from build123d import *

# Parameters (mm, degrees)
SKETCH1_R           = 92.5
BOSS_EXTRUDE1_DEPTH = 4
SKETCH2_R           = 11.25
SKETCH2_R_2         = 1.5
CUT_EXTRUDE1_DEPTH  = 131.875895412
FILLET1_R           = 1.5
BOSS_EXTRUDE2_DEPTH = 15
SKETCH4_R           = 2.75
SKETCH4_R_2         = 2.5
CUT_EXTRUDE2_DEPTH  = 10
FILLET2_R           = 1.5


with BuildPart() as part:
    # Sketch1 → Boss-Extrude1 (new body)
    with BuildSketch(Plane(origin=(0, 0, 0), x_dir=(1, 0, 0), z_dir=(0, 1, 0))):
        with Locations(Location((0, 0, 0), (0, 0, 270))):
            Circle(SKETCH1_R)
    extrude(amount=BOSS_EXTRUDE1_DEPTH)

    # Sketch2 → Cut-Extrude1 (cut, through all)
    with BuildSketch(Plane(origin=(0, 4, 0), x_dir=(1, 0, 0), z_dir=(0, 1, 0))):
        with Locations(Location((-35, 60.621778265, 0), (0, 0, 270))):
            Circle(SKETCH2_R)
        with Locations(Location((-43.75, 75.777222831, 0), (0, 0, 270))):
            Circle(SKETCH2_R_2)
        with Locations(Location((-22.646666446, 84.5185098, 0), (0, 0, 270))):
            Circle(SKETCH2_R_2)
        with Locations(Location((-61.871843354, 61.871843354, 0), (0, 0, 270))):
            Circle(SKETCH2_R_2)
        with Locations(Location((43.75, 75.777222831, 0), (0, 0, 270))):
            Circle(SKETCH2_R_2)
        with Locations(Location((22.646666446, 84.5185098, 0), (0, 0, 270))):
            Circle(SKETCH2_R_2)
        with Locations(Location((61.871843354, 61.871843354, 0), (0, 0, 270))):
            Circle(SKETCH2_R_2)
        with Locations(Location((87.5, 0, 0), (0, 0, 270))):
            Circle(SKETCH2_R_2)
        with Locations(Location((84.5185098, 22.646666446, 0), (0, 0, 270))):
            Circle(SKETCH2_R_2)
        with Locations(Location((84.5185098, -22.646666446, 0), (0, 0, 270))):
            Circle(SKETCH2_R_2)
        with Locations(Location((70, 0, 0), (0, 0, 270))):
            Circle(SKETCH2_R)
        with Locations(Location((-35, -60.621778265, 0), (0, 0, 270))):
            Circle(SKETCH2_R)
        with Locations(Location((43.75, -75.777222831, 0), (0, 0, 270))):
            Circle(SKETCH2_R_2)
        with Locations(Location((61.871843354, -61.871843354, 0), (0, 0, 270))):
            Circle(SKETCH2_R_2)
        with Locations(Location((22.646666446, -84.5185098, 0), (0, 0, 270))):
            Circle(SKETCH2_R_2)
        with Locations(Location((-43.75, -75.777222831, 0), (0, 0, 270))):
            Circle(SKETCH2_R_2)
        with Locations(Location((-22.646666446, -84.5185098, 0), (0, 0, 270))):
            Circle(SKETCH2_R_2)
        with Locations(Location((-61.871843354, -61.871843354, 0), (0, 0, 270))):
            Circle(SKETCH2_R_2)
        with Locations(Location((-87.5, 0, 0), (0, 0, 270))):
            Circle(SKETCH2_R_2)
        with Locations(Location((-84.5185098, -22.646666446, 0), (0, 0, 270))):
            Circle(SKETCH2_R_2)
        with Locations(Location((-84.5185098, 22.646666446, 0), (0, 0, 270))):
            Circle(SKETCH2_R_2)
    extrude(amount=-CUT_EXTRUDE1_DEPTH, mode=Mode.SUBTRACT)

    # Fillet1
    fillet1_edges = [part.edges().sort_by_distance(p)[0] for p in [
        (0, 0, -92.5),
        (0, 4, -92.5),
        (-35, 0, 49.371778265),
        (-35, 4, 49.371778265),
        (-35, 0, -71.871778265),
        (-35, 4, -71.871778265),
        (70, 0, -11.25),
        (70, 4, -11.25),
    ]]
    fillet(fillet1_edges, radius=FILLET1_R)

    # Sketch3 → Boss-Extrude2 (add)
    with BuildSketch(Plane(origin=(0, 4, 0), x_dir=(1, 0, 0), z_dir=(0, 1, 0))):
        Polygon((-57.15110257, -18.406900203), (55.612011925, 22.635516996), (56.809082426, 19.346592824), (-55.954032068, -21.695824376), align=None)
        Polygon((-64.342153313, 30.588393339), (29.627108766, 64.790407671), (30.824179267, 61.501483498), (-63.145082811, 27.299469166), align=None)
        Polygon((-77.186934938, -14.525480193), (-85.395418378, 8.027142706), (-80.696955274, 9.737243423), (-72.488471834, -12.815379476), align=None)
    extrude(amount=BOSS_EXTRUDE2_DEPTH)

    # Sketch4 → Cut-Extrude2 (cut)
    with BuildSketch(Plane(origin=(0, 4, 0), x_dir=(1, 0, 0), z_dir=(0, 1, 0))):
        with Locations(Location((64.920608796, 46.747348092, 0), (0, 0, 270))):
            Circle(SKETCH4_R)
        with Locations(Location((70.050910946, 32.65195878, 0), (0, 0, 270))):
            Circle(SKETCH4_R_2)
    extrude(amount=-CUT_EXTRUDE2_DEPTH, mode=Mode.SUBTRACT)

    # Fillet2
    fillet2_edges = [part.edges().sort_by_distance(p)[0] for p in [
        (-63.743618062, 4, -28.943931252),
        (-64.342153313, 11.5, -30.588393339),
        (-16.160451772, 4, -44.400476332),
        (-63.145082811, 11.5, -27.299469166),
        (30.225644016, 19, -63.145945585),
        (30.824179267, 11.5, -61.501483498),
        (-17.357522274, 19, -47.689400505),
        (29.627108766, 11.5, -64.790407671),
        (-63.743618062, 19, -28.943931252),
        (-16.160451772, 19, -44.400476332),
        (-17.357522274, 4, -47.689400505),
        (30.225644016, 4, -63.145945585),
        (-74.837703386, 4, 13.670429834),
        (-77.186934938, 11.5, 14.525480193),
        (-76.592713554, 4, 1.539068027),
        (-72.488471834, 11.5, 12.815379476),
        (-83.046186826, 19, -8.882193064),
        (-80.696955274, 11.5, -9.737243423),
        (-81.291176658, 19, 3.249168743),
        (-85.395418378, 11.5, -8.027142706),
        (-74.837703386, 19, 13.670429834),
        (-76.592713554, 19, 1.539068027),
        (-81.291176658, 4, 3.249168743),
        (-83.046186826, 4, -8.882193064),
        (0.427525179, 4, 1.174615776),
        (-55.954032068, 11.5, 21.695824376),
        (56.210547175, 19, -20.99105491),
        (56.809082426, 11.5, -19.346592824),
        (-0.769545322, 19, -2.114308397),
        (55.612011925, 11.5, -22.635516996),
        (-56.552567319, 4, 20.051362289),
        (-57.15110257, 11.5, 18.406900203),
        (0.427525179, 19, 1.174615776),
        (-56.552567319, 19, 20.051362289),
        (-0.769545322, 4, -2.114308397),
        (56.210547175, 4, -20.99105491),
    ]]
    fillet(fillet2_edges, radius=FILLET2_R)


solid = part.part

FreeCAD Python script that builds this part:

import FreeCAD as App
import Part
import Sketcher
from FreeCAD import Vector
Q = App.Units.Quantity


def edges_at(feature, points):
    """Names of the edges that pass closest to the given points."""
    edges = feature.Shape.Edges
    near = lambda p: min(range(len(edges)), key=lambda i: edges[i].distToShape(Part.Vertex(*p))[0])
    return sorted({f"Edge{near(p) + 1}" for p in points})


def add_polygon(sketch, points):
    """Adds a closed chain of lines whose ends are joined by coincident constraints."""
    first, n = sketch.GeometryCount, len(points)
    for a, b in zip(points, points[1:] + points[:1]):
        sketch.addGeometry(Part.LineSegment(App.Vector(*a, 0), App.Vector(*b, 0)), False)
    for i in range(n):
        sketch.addConstraint(Sketcher.Constraint("Coincident", first + i, 2, first + (i + 1) % n, 1))

doc = App.newDocument("Part")
body = doc.addObject("PartDesign::Body", "Body")

sketch1 = body.newObject("Sketcher::SketchObject", "Sketch")
sketch1.AttachmentSupport = (doc.getObject("XZ_Plane"), [""])
sketch1.MapMode = "FlatFace"
sketch1.addGeometry(Part.Circle(Vector(0, 0, 0), Vector(0, 0, 1), 92.5), False)
sketch1.addConstraint([
    Sketcher.Constraint("Coincident", 0, 3, -1, 1),
    Sketcher.Constraint("Diameter", 0, 185.0),
])
pad1 = body.newObject("PartDesign::Pad", "Pad")
pad1.Profile = sketch1
pad1.Length = 4
pad1.Reversed = True

sketch2 = body.newObject("Sketcher::SketchObject", "Sketch001")
sketch2.AttachmentSupport = (doc.getObject("XZ_Plane"), [""])
sketch2.MapMode = "FlatFace"
sketch2.AttachmentOffset = App.Placement(Vector(0, 0, -4), App.Rotation())
sketch2.addGeometry([
    Part.Circle(Vector(-35, -60.621778, 0), Vector(0, 0, 1), 11.25),
    Part.Circle(Vector(-43.75, -75.777223, 0), Vector(0, 0, 1), 1.5),
    Part.Circle(Vector(-22.646666, -84.51851, 0), Vector(0, 0, 1), 1.5),
    Part.Circle(Vector(-61.871843, -61.871843, 0), Vector(0, 0, 1), 1.5),
    Part.Circle(Vector(43.75, -75.777223, 0), Vector(0, 0, 1), 1.5),
    Part.Circle(Vector(22.646666, -84.51851, 0), Vector(0, 0, 1), 1.5),
    Part.Circle(Vector(61.871843, -61.871843, 0), Vector(0, 0, 1), 1.5),
    Part.Circle(Vector(87.5, 0, 0), Vector(0, 0, 1), 1.5),
    Part.Circle(Vector(84.51851, -22.646666, 0), Vector(0, 0, 1), 1.5),
    Part.Circle(Vector(84.51851, 22.646666, 0), Vector(0, 0, 1), 1.5),
    Part.Circle(Vector(70, 0, 0), Vector(0, 0, 1), 11.25),
    Part.Circle(Vector(-35, 60.621778, 0), Vector(0, 0, 1), 11.25),
    Part.Circle(Vector(43.75, 75.777223, 0), Vector(0, 0, 1), 1.5),
    Part.Circle(Vector(61.871843, 61.871843, 0), Vector(0, 0, 1), 1.5),
    Part.Circle(Vector(22.646666, 84.51851, 0), Vector(0, 0, 1), 1.5),
    Part.Circle(Vector(-43.75, 75.777223, 0), Vector(0, 0, 1), 1.5),
    Part.Circle(Vector(-22.646666, 84.51851, 0), Vector(0, 0, 1), 1.5),
    Part.Circle(Vector(-61.871843, 61.871843, 0), Vector(0, 0, 1), 1.5),
    Part.Circle(Vector(-87.5, 0, 0), Vector(0, 0, 1), 1.5),
    Part.Circle(Vector(-84.51851, 22.646666, 0), Vector(0, 0, 1), 1.5),
    Part.Circle(Vector(-84.51851, -22.646666, 0), Vector(0, 0, 1), 1.5),
], False)
sketch2.addConstraint([
    Sketcher.Constraint("Equal", 1, 2),
    Sketcher.Constraint("Equal", 2, 3),
    Sketcher.Constraint("Equal", 3, 4),
    Sketcher.Constraint("Equal", 4, 5),
    Sketcher.Constraint("Equal", 5, 6),
    Sketcher.Constraint("Equal", 6, 7),
    Sketcher.Constraint("Equal", 7, 8),
    Sketcher.Constraint("Equal", 8, 9),
    Sketcher.Constraint("Equal", 0, 10),
    Sketcher.Constraint("Equal", 10, 11),
    Sketcher.Constraint("Equal", 9, 12),
    Sketcher.Constraint("Equal", 12, 13),
    Sketcher.Constraint("Equal", 13, 14),
    Sketcher.Constraint("Equal", 14, 15),
    Sketcher.Constraint("Equal", 15, 16),
    Sketcher.Constraint("Equal", 16, 17),
    Sketcher.Constraint("Equal", 17, 18),
    Sketcher.Constraint("Equal", 18, 19),
    Sketcher.Constraint("Equal", 19, 20),
    Sketcher.Constraint("Symmetric", 1, 3, 12, 3, -1, 1),
    Sketcher.Constraint("Symmetric", 3, 3, 13, 3, -1, 1),
    Sketcher.Constraint("Symmetric", 2, 3, 14, 3, -1, 1),
    Sketcher.Constraint("Symmetric", 4, 3, 15, 3, -1, 1),
    Sketcher.Constraint("Symmetric", 5, 3, 16, 3, -1, 1),
    Sketcher.Constraint("Symmetric", 6, 3, 17, 3, -1, 1),
    Sketcher.Constraint("Symmetric", 7, 3, 18, 3, -1, 1),
    Sketcher.Constraint("Symmetric", 8, 3, 19, 3, -1, 1),
    Sketcher.Constraint("Symmetric", 9, 3, 20, 3, -1, 1),
    Sketcher.Constraint("Symmetric", 1, 3, 4, 3, -2),
    Sketcher.Constraint("Symmetric", 2, 3, 5, 3, -2),
    Sketcher.Constraint("Symmetric", 3, 3, 6, 3, -2),
    Sketcher.Constraint("Symmetric", 9, 3, 19, 3, -2),
    Sketcher.Constraint("Symmetric", 0, 3, 11, 3, -1),
    Sketcher.Constraint("PointOnObject", 7, 3, -1),
    Sketcher.Constraint("PointOnObject", 10, 3, -1),
    Sketcher.Constraint("Diameter", 1, 3.0),
    Sketcher.Constraint("Diameter", 0, 22.5),
    Sketcher.Constraint("DistanceX", 0, 3, -1, 1, 35.0),
    Sketcher.Constraint("DistanceX", -1, 1, 10, 3, 70.0),
    Sketcher.Constraint("DistanceX", -1, 1, 7, 3, 87.5),
    Sketcher.Constraint("DistanceX", 1, 3, 4, 3, 87.5),
    Sketcher.Constraint("DistanceY", 1, 3, 11, 3, 136.399001),
    Sketcher.Constraint("DistanceY", 0, 3, -1, 1, 60.621778),
    Sketcher.Constraint("DistanceY", 2, 3, -1, 1, 84.51851),
    Sketcher.Constraint("DistanceX", -1, 1, 8, 3, 84.51851),
    Sketcher.Constraint("DistanceY", 1, 3, 3, 3, 13.905379),
    Sketcher.Constraint("DistanceX", 3, 3, 5, 3, 84.51851),
    Sketcher.Constraint("DistanceY", 6, 3, 9, 3, 84.51851),
    Sketcher.Constraint("DistanceX", 2, 3, -1, 1, 22.646666),
])
pocket1 = body.newObject("PartDesign::Pocket", "Pocket")
pocket1.Profile = sketch2
pocket1.Type = "ThroughAll"
pocket1.Reversed = True
doc.recompute()

fillet = body.newObject("PartDesign::Fillet", "Fillet")
fillet.Base = (pocket1, edges_at(pocket1, [
    (0, 0, -92.5),
    (0, 4, -92.5),
    (-35, 0, 49.372),
    (-35, 4, 49.372),
    (-35, 0, -71.872),
    (-35, 4, -71.872),
    (70, 0, -11.25),
    (70, 4, -11.25),
]))
fillet.Radius = 1.5

sketch3 = body.newObject("Sketcher::SketchObject", "Sketch002")
sketch3.AttachmentSupport = (doc.getObject("XZ_Plane"), [""])
sketch3.MapMode = "FlatFace"
sketch3.AttachmentOffset = App.Placement(Vector(0, 0, -4), App.Rotation())
add_polygon(sketch3, [(55.612012, -22.635517), (-57.151103, 18.4069), (-55.954032, 21.695824), (56.809082, -19.346593)])
add_polygon(sketch3, [(29.627109, -64.790408), (-64.342153, -30.588393), (-63.145083, -27.299469), (30.824179, -61.501483)])
add_polygon(sketch3, [(-85.395418, -8.027143), (-77.186935, 14.52548), (-72.488472, 12.815379), (-80.696955, -9.737243)])
sketch3.addConstraint([
    Sketcher.Constraint("Perpendicular", 0, 1),
    Sketcher.Constraint("Perpendicular", 1, 2),
    Sketcher.Constraint("Perpendicular", 2, 3),
    Sketcher.Constraint("Perpendicular", 3, 4),
    Sketcher.Constraint("Perpendicular", 4, 5),
    Sketcher.Constraint("Perpendicular", 5, 6),
    Sketcher.Constraint("Perpendicular", 6, 7),
    Sketcher.Constraint("Parallel", 7, 8),
    Sketcher.Constraint("Perpendicular", 8, 9),
    Sketcher.Constraint("Perpendicular", 9, 10),
    Sketcher.Constraint("Perpendicular", 10, 11),
    Sketcher.Constraint("Equal", 3, 5),
    Sketcher.Constraint("Angle", 0, Q("160 deg")),
    Sketcher.Constraint("Distance", 0, 120.0),
    Sketcher.Constraint("Distance", 4, 100.0),
    Sketcher.Constraint("Distance", 8, 24.0),
    Sketcher.Constraint("Distance", 9, 5.0),
    Sketcher.Constraint("Distance", 1, 3.5),
    Sketcher.Constraint("DistanceY", -1, 1, 0, 2, 18.4069),
    Sketcher.Constraint("DistanceY", 4, 2, 2, 2, 11.241801),
    Sketcher.Constraint("DistanceX", 10, 2, 4, 2, 16.354802),
    Sketcher.Constraint("DistanceX", -1, 1, 3, 2, 55.612012),
    Sketcher.Constraint("DistanceX", -1, 1, 6, 2, 30.824179),
    Sketcher.Constraint("DistanceY", -1, 1, 8, 2, 14.52548),
])
pad2 = body.newObject("PartDesign::Pad", "Pad001")
pad2.Profile = sketch3
pad2.Length = 15
pad2.Reversed = True

sketch4 = body.newObject("Sketcher::SketchObject", "Sketch003")
sketch4.AttachmentSupport = (doc.getObject("XZ_Plane"), [""])
sketch4.MapMode = "FlatFace"
sketch4.AttachmentOffset = App.Placement(Vector(0, 0, -4), App.Rotation())
sketch4.addGeometry([
    Part.Circle(Vector(64.920609, -46.747348, 0), Vector(0, 0, 1), 2.75),
    Part.Circle(Vector(70.050911, -32.651959, 0), Vector(0, 0, 1), 2.5),
], False)
sketch4.addConstraint([
    Sketcher.Constraint("Diameter", 1, 5.0),
    Sketcher.Constraint("Diameter", 0, 5.5),
    Sketcher.Constraint("DistanceX", -1, 1, 0, 3, 64.920609),
    Sketcher.Constraint("DistanceY", 0, 3, -1, 1, 46.747348),
    Sketcher.Constraint("DistanceX", -1, 1, 1, 3, 70.050911),
    Sketcher.Constraint("DistanceY", 1, 3, -1, 1, 32.651959),
])
pocket2 = body.newObject("PartDesign::Pocket", "Pocket001")
pocket2.Profile = sketch4
pocket2.Length = 10
pocket2.Reversed = True
doc.recompute()

fillet2 = body.newObject("PartDesign::Fillet", "Fillet001")
fillet2.Base = (pocket2, edges_at(pocket2, [
    (-63.744, 4, -28.944),
    (-64.342, 11.5, -30.588),
    (-16.16, 4, -44.4),
    (-63.145, 11.5, -27.299),
    (30.226, 19, -63.146),
    (30.824, 11.5, -61.501),
    (-17.358, 19, -47.689),
    (29.627, 11.5, -64.79),
    (-63.744, 19, -28.944),
    (-16.16, 19, -44.4),
    (-17.358, 4, -47.689),
    (30.226, 4, -63.146),
    (-74.838, 4, 13.67),
    (-77.187, 11.5, 14.525),
    (-76.593, 4, 1.539),
    (-72.488, 11.5, 12.815),
    (-83.046, 19, -8.882),
    (-80.697, 11.5, -9.737),
    (-81.291, 19, 3.249),
    (-85.395, 11.5, -8.027),
    (-74.838, 19, 13.67),
    (-76.593, 19, 1.539),
    (-81.291, 4, 3.249),
    (-83.046, 4, -8.882),
    (0.428, 4, 1.175),
    (-55.954, 11.5, 21.696),
    (56.211, 19, -20.991),
    (56.809, 11.5, -19.347),
    (-0.77, 19, -2.114),
    (55.612, 11.5, -22.636),
    (-56.553, 4, 20.051),
    (-57.151, 11.5, 18.407),
    (0.428, 19, 1.175),
    (-56.553, 19, 20.051),
    (-0.77, 4, -2.114),
    (56.211, 4, -20.991),
]))
fillet2.Radius = 1.5

doc.recompute()
